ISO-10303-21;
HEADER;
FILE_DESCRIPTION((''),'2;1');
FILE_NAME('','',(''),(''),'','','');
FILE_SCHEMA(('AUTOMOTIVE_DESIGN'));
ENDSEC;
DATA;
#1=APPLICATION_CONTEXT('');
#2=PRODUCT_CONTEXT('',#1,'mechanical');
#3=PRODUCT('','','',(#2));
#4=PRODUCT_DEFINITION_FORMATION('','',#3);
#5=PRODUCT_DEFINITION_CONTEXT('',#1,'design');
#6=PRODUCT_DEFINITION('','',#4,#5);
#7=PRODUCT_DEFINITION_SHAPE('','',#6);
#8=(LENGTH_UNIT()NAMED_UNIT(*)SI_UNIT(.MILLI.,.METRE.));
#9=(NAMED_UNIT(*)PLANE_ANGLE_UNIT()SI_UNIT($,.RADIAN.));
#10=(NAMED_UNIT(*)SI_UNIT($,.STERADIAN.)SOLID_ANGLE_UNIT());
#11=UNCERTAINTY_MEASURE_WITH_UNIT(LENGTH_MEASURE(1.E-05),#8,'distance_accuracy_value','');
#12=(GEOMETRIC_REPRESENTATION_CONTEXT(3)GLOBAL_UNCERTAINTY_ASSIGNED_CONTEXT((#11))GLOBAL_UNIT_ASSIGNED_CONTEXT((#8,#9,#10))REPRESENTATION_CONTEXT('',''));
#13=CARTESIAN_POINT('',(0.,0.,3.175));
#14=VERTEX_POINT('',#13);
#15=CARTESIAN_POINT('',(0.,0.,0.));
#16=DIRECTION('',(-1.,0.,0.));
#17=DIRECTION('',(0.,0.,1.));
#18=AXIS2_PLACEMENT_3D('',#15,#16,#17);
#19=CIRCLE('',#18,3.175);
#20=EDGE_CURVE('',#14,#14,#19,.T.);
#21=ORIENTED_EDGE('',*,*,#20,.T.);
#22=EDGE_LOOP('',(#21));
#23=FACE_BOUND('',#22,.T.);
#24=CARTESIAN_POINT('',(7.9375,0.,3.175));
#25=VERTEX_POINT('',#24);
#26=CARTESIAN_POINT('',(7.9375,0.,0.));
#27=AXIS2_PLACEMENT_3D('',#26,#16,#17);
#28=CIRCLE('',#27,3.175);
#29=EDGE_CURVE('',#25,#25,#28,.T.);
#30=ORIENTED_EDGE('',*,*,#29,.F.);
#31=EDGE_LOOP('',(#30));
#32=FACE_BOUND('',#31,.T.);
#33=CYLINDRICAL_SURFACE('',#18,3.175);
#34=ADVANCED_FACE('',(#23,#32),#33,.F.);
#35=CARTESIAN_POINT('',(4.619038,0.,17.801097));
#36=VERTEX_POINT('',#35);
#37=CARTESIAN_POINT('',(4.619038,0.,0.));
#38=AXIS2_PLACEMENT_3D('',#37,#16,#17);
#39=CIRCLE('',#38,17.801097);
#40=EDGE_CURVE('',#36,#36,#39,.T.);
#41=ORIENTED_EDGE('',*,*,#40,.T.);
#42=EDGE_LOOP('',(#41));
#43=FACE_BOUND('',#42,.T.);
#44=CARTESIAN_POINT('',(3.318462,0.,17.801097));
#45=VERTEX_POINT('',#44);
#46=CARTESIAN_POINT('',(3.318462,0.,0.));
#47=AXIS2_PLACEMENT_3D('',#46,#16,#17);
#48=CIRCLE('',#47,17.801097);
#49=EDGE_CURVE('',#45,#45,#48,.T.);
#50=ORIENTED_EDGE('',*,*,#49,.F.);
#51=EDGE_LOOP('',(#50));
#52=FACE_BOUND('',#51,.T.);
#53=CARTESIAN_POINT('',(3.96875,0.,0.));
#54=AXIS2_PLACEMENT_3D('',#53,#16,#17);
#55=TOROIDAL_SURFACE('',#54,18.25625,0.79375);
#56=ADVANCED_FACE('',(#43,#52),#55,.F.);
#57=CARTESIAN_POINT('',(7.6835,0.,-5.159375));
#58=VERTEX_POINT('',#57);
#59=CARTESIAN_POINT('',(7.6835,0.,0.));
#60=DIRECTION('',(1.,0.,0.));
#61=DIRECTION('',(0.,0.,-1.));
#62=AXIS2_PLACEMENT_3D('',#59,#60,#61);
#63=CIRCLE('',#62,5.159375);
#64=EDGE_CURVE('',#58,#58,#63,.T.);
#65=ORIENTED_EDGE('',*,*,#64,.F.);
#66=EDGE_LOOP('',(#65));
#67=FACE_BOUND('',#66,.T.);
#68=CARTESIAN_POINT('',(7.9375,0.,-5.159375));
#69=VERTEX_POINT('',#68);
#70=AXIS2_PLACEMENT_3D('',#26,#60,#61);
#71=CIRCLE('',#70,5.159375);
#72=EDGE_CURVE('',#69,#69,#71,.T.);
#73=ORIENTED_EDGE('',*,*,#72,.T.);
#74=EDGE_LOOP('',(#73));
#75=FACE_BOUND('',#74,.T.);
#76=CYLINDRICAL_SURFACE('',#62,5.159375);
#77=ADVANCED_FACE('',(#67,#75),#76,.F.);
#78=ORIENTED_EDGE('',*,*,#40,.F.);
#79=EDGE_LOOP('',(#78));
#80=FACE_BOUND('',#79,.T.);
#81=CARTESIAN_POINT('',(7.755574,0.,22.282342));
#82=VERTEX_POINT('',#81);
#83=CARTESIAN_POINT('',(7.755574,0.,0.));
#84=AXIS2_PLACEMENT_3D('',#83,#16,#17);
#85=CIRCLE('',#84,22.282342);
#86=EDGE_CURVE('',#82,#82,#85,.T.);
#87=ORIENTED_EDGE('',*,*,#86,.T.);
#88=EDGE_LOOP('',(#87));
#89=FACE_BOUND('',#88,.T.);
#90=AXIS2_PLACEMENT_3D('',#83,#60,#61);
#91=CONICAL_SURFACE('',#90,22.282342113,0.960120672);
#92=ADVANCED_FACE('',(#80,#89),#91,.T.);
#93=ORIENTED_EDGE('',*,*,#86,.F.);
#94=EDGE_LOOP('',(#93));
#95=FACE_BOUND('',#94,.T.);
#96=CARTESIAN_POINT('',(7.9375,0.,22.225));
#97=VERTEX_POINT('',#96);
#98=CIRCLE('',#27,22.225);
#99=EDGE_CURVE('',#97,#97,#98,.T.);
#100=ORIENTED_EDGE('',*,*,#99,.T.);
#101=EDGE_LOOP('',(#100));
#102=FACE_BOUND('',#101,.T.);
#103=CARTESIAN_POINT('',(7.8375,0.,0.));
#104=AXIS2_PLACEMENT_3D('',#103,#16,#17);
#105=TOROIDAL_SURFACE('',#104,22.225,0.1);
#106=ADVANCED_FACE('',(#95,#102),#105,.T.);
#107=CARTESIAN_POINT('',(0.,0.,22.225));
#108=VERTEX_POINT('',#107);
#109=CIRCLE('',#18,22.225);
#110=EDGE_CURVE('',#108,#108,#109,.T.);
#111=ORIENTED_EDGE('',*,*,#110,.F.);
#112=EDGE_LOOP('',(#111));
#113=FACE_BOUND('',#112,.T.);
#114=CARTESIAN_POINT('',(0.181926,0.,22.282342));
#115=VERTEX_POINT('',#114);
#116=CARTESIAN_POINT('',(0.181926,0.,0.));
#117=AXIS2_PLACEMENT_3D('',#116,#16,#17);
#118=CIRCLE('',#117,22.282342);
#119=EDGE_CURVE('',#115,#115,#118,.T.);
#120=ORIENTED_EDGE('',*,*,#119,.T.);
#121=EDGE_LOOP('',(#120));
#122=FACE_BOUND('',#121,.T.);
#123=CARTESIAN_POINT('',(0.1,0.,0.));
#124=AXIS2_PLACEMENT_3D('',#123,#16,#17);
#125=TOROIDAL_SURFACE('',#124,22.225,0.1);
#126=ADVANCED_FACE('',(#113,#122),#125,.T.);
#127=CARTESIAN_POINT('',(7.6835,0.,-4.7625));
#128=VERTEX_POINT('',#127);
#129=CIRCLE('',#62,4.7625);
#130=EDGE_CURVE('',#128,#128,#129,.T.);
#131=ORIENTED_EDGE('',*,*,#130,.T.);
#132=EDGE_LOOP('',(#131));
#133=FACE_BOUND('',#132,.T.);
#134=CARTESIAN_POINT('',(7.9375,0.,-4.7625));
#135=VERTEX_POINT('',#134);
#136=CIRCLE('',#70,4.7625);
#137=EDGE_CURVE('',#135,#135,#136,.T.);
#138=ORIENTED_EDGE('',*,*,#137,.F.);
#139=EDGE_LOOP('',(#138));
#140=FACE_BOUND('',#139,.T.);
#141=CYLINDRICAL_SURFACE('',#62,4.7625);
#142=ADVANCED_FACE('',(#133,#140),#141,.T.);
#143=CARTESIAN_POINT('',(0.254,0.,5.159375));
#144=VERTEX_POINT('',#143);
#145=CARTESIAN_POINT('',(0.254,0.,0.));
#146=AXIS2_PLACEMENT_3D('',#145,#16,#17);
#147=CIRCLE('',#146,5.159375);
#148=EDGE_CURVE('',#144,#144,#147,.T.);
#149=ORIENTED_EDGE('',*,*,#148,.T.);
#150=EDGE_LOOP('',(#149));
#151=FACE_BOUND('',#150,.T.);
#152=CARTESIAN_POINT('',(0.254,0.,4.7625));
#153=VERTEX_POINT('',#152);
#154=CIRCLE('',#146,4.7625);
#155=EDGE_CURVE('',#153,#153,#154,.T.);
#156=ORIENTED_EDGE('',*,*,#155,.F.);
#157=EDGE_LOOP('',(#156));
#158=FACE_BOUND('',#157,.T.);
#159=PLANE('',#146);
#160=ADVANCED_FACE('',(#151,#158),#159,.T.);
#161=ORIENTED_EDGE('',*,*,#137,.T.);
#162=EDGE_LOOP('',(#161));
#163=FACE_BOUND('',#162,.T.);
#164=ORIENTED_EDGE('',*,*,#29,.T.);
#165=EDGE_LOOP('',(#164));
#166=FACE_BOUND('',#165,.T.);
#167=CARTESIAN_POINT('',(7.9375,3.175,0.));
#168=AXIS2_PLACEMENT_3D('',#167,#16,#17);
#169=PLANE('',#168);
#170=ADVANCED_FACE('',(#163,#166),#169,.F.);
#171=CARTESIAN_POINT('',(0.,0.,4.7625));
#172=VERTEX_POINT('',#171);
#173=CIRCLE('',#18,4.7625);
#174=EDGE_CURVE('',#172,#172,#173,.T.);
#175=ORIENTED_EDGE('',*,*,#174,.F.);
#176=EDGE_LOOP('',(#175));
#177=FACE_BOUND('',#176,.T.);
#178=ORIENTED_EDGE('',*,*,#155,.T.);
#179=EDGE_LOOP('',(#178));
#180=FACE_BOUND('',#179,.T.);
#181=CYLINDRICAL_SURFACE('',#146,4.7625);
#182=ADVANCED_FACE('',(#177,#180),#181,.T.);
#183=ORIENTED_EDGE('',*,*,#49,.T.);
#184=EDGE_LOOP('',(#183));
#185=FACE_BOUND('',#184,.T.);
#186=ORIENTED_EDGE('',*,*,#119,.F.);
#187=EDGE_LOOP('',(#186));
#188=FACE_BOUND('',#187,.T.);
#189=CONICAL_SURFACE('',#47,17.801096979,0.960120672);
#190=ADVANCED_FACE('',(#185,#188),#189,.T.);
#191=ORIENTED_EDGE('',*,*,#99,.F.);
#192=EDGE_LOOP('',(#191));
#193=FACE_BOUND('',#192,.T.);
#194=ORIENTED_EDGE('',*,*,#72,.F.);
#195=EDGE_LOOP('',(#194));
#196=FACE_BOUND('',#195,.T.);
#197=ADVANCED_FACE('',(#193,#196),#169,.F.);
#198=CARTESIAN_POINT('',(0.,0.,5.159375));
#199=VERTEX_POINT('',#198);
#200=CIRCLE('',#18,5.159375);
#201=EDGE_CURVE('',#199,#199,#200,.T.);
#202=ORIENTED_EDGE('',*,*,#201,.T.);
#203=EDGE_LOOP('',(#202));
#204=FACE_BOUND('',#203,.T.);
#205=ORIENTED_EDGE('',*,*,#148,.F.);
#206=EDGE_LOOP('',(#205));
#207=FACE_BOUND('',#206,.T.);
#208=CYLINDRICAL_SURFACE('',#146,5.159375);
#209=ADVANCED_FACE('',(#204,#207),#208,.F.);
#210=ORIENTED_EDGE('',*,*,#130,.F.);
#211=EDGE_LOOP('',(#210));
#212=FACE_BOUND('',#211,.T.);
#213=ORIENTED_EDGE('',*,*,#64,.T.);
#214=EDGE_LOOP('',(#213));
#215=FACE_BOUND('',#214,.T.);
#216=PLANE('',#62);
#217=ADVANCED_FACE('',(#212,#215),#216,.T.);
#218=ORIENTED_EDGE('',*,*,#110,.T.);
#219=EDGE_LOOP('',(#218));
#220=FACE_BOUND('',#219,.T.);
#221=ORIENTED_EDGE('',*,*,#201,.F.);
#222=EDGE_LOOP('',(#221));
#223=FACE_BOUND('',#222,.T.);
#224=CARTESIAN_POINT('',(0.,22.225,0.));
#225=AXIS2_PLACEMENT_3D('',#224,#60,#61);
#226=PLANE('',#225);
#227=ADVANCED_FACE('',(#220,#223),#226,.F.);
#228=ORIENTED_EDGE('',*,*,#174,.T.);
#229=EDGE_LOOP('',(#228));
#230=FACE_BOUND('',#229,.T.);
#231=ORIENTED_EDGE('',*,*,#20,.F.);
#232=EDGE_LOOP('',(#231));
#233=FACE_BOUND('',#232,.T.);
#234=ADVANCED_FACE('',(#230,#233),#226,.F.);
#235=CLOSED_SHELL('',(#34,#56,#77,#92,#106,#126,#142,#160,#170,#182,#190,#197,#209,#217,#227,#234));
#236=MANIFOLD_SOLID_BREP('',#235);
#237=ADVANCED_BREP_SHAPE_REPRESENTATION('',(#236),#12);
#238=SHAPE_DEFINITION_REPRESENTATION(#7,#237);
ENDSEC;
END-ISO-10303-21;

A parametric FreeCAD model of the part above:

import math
import FreeCAD as App
import Part
import Sketcher
Q = App.Units.Quantity

doc = App.newDocument("Part")
body = doc.addObject("PartDesign::Body", "Body")

sketch1 = body.newObject("Sketcher::SketchObject", "Sketch")
sketch1.AttachmentSupport = (doc.getObject("XY_Plane"), [""])
sketch1.MapMode = "FlatFace"
sketch1.addGeometry(Part.LineSegment(App.Vector(0, 3.175, 0), App.Vector(7.9375, 3.175, 0)), False)
sketch1.addGeometry(Part.LineSegment(App.Vector(7.9375, 3.175, 0), App.Vector(7.9375, 22.225, 0)), False)
sketch1.addGeometry(Part.ArcOfCircle(Part.Circle(App.Vector(7.8375, 22.225, 0), App.Vector(0, 0, 1), 0.1), math.radians(0), math.radians(145.010862)), False)
sketch1.addGeometry(Part.LineSegment(App.Vector(7.755574, 22.282342, 0), App.Vector(4.619038, 17.801097, 0)), False)
sketch1.addGeometry(Part.ArcOfCircle(Part.Circle(App.Vector(3.96875, 18.25625, 0), App.Vector(0, 0, 1), 0.79375), math.radians(-145.010862), math.radians(-34.989138)), False)
sketch1.addGeometry(Part.LineSegment(App.Vector(3.318462, 17.801097, 0), App.Vector(0.181926, 22.282342, 0)), False)
sketch1.addGeometry(Part.ArcOfCircle(Part.Circle(App.Vector(0.1, 22.225, 0), App.Vector(0, 0, 1), 0.1), math.radians(34.989138), math.radians(180)), False)
sketch1.addGeometry(Part.LineSegment(App.Vector(0, 22.225, 0), App.Vector(0, 3.175, 0)), False)
sketch1.addConstraint(Sketcher.Constraint("Coincident", 0, 2, 1, 1))
sketch1.addConstraint(Sketcher.Constraint("Tangent", 1, 2, 2, 1))
sketch1.addConstraint(Sketcher.Constraint("Tangent", 2, 2, 3, 1))
sketch1.addConstraint(Sketcher.Constraint("Tangent", 3, 2, 4, 2))
sketch1.addConstraint(Sketcher.Constraint("Tangent", 4, 1, 5, 1))
sketch1.addConstraint(Sketcher.Constraint("Tangent", 5, 2, 6, 1))
sketch1.addConstraint(Sketcher.Constraint("Tangent", 6, 2, 7, 1))
sketch1.addConstraint(Sketcher.Constraint("Coincident", 7, 2, 0, 1))
sketch1.addConstraint(Sketcher.Constraint("Horizontal", 0))
sketch1.addConstraint(Sketcher.Constraint("Vertical", 1))
sketch1.addConstraint(Sketcher.Constraint("Vertical", 7))
sketch1.addConstraint(Sketcher.Constraint("Equal", 2, 6))
sketch1.addConstraint(Sketcher.Constraint("PointOnObject", 6, 2, -2))
sketch1.addConstraint(Sketcher.Constraint("Horizontal", 2, 3, 6, 3))
sketch1.addConstraint(Sketcher.Constraint("Horizontal", 3, 2, 4, 1))
sketch1.addConstraint(Sketcher.Constraint("Radius", 4, Q("0.03125 in")))
sketch1.addConstraint(Sketcher.Constraint("DistanceY", 1, 1, 1, 2, Q("0.75 in")))
sketch1.addConstraint(Sketcher.Constraint("DistanceX", 0, 1, 0, 2, Q("0.3125 in")))
sketch1.addConstraint(Sketcher.Constraint("Radius", 2, Q("0.1 mm")))
sketch1.addConstraint(Sketcher.Constraint("DistanceY", -1, 1, 2, 3, Q("0.875 in")))
sketch1.addConstraint(Sketcher.Constraint("DistanceY", -1, 1, 4, 3, Q("0.71875 in")))
revolution = body.newObject("PartDesign::Revolution", "Revolution")
revolution.Profile = sketch1
revolution.ReferenceAxis = (sketch1, ["H_Axis"])
revolution.Angle = 360

sketch2 = body.newObject("Sketcher::SketchObject", "Sketch001")
sketch2.AttachmentSupport = (doc.getObject("YZ_Plane"), [""])
sketch2.MapMode = "FlatFace"
sketch2.AttachmentOffset = App.Placement(App.Vector(0, 0, 0.3125 * 25.4), App.Rotation())
sketch2.addGeometry(Part.Circle(App.Vector(0, 0, 0), App.Vector(0, 0, 1), 5.159375), False)
sketch2.addGeometry(Part.Circle(App.Vector(0, 0, 0), App.Vector(0, 0, 1), 4.7625), False)
sketch2.addConstraint(Sketcher.Constraint("Coincident", 0, 3, -1, 1))
sketch2.addConstraint(Sketcher.Constraint("Coincident", 1, 3, -1, 1))
sketch2.addConstraint(Sketcher.Constraint("Diameter", 0, Q("0.40625 in")))
sketch2.addConstraint(Sketcher.Constraint("Diameter", 1, Q("0.375 in")))
pocket1 = body.newObject("PartDesign::Pocket", "Pocket")
pocket1.Profile = sketch2
pocket1.Length = Q("0.01 in")

sketch3 = body.newObject("Sketcher::SketchObject", "Sketch002")
sketch3.AttachmentSupport = (doc.getObject("YZ_Plane"), [""])
sketch3.MapMode = "FlatFace"
sketch3.AttachmentOffset = App.Placement(App.Vector(0, 0, 0.01 * 25.4), App.Rotation())
sketch3.addGeometry(Part.Circle(App.Vector(0, 0, 0), App.Vector(0, 0, 1), 5.159375), False)
sketch3.addGeometry(Part.Circle(App.Vector(0, 0, 0), App.Vector(0, 0, 1), 4.7625), False)
sketch3.addConstraint(Sketcher.Constraint("Coincident", 0, 3, -1, 1))
sketch3.addConstraint(Sketcher.Constraint("Coincident", 1, 3, -1, 1))
sketch3.addConstraint(Sketcher.Constraint("Diameter", 0, Q("0.40625 in")))
sketch3.addConstraint(Sketcher.Constraint("Diameter", 1, Q("0.375 in")))
pocket2 = body.newObject("PartDesign::Pocket", "Pocket001")
pocket2.Profile = sketch3
pocket2.Length = Q("0.01 in")

doc.recompute()
